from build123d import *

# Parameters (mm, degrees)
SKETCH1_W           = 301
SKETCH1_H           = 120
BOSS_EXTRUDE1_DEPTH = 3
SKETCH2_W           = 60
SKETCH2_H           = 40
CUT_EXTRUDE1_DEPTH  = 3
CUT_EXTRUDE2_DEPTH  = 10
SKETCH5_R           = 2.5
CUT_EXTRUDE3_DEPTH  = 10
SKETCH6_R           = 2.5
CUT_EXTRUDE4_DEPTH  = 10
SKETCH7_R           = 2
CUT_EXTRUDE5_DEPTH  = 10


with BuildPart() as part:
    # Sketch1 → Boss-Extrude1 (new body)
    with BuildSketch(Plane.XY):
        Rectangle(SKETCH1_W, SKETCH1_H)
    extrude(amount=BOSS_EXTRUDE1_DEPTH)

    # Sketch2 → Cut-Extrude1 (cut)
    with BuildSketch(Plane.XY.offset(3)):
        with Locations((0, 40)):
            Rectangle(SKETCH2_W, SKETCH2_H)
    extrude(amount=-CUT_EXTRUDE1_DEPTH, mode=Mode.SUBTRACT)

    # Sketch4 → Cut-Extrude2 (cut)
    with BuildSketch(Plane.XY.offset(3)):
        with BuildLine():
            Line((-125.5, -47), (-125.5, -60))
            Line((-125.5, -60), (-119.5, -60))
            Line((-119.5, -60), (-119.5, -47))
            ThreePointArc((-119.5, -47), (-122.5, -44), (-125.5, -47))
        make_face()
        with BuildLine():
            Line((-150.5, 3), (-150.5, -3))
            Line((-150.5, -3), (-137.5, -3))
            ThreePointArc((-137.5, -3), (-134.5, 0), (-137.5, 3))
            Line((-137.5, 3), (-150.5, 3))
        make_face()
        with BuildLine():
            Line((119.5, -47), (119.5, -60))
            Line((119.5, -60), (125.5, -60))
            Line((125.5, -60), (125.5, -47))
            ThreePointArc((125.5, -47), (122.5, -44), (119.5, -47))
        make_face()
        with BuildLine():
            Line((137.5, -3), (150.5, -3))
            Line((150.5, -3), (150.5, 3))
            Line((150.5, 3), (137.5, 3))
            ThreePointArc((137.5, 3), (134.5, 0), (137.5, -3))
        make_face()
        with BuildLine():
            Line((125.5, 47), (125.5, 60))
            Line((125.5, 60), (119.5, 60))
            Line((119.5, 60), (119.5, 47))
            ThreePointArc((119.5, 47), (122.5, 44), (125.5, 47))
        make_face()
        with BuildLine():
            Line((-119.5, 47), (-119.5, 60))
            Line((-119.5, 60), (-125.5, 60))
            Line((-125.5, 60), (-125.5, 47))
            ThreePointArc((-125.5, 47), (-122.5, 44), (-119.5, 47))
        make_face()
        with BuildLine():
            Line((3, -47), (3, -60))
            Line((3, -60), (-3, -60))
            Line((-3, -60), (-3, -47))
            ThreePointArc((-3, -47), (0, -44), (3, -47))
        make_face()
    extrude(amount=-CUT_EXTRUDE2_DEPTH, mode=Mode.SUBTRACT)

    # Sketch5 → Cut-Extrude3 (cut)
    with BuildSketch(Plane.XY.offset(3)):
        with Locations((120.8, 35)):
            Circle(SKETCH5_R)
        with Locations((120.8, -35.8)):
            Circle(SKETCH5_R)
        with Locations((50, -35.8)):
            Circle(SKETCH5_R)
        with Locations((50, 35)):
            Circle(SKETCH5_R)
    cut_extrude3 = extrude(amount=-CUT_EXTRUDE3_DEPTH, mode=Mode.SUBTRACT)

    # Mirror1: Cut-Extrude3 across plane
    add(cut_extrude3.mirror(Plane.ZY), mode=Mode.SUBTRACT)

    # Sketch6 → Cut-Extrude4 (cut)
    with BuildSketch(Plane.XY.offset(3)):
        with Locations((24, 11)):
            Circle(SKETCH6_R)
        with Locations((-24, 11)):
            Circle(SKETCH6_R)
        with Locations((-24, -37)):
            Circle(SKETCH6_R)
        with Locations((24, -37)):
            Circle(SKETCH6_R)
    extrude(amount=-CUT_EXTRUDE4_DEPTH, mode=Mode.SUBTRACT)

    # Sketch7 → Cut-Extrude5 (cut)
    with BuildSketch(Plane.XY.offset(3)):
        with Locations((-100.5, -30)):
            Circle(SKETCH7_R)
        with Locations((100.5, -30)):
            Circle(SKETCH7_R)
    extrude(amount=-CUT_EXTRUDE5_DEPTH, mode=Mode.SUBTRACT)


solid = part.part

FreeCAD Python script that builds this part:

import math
import FreeCAD as App
import Part
import Sketcher
from FreeCAD import Vector
Q = App.Units.Quantity

doc = App.newDocument("Part")
params = doc.addObject("Spreadsheet::Sheet", "Params")
for row, (alias, value) in enumerate([
    ("sketch1_width", "301 mm"),
    ("sketch1_height", "120 mm"),
    ("pad1_length", "3 mm"),
    ("sketch2_width", "60 mm"),
    ("sketch2_height", "40 mm"),
    ("pocket1_length", "3 mm"),
    ("sketch3_radius", "3 mm"),
    ("sketch3_width", "13 mm"),
    ("pocket2_length", "10 mm"),
    ("sketch4_diameter", "5 mm"),
    ("pocket3_length", "10 mm"),
    ("sketch5_diameter", "5 mm"),
    ("pocket4_length", "10 mm"),
    ("sketch6_diameter", "4 mm"),
    ("pocket5_length", "10 mm"),
], start=1):
    params.set(f"A{row}", alias)
    params.set(f"B{row}", "=" + value)
    params.setAlias(f"B{row}", alias)

body = doc.addObject("PartDesign::Body", "Body")

# Sketch on XY plane
sketch1 = doc.addObject("Sketcher::SketchObject", "Sketch")
body.addObject(sketch1)
sketch1.AttachmentSupport = (doc.XY_Plane, [""])
sketch1.MapMode = "FlatFace"
sketch1.addGeometry([
    Part.LineSegment(Vector(-150.5, 60, 0), Vector(-150.5, -60, 0)),
    Part.LineSegment(Vector(-150.5, -60, 0), Vector(150.5, -60, 0)),
    Part.LineSegment(Vector(150.5, -60, 0), Vector(150.5, 60, 0)),
    Part.LineSegment(Vector(150.5, 60, 0), Vector(-150.5, 60, 0)),
], False)
sketch1.addConstraint([
    Sketcher.Constraint("Coincident", 0, 2, 1, 1),
    Sketcher.Constraint("Coincident", 1, 2, 2, 1),
    Sketcher.Constraint("Coincident", 2, 2, 3, 1),
    Sketcher.Constraint("Coincident", 3, 2, 0, 1),
    Sketcher.Constraint("Vertical", 0),
    Sketcher.Constraint("Horizontal", 1),
    Sketcher.Constraint("Vertical", 2),
    Sketcher.Constraint("Horizontal", 3),
    Sketcher.Constraint("Symmetric", 0, 2, 2, 2, -1, 1),
    Sketcher.Constraint("DistanceX", 1, 1, 1, 2, Q("301 mm")),
    Sketcher.Constraint("DistanceY", 0, 2, 0, 1, Q("120 mm")),
])
sketch1.setExpression("Constraints[9]", "Params.sketch1_width")
sketch1.setExpression("Constraints[10]", "Params.sketch1_height")
pad1 = doc.addObject("PartDesign::Pad", "Pad")
body.addObject(pad1)
pad1.Profile = sketch1
pad1.setExpression("Length", "Params.pad1_length")

# Sketch on XY plane
sketch2 = doc.addObject("Sketcher::SketchObject", "Sketch001")
body.addObject(sketch2)
sketch2.AttachmentSupport = (doc.XY_Plane, [""])
sketch2.MapMode = "FlatFace"
sketch2.AttachmentOffset = App.Placement(Vector(0, 0, 3), App.Rotation())
sketch2.addGeometry([
    Part.LineSegment(Vector(-30, 60, 0), Vector(-30, 20, 0)),
    Part.LineSegment(Vector(-30, 20, 0), Vector(30, 20, 0)),
    Part.LineSegment(Vector(30, 20, 0), Vector(30, 60, 0)),
    Part.LineSegment(Vector(30, 60, 0), Vector(-30, 60, 0)),
], False)
sketch2.addConstraint([
    Sketcher.Constraint("Coincident", 0, 2, 1, 1),
    Sketcher.Constraint("Coincident", 1, 2, 2, 1),
    Sketcher.Constraint("Coincident", 2, 2, 3, 1),
    Sketcher.Constraint("Coincident", 3, 2, 0, 1),
    Sketcher.Constraint("Vertical", 0),
    Sketcher.Constraint("Horizontal", 1),
    Sketcher.Constraint("Vertical", 2),
    Sketcher.Constraint("Horizontal", 3),
    Sketcher.Constraint("DistanceX", 1, 1, 1, 2, Q("60 mm")),
    Sketcher.Constraint("DistanceY", 0, 2, 0, 1, Q("40 mm")),
    Sketcher.Constraint("DistanceX", 0, 2, -1, 1, Q("30 mm")),
    Sketcher.Constraint("DistanceY", -1, 1, 0, 2, Q("20 mm")),
])
sketch2.setExpression("Constraints[8]", "Params.sketch2_width")
sketch2.setExpression("Constraints[9]", "Params.sketch2_height")
pocket1 = doc.addObject("PartDesign::Pocket", "Pocket")
body.addObject(pocket1)
pocket1.Profile = sketch2
pocket1.setExpression("Length", "Params.pocket1_length")

# Sketch on XY plane
sketch3 = doc.addObject("Sketcher::SketchObject", "Sketch002")
body.addObject(sketch3)
sketch3.AttachmentSupport = (doc.XY_Plane, [""])
sketch3.MapMode = "FlatFace"
sketch3.AttachmentOffset = App.Placement(Vector(0, 0, 3), App.Rotation())
sketch3.addGeometry([
    Part.LineSegment(Vector(-125.5, -47, 0), Vector(-125.5, -60, 0)),  # 0
    Part.LineSegment(Vector(-125.5, -60, 0), Vector(-119.5, -60, 0)),  # 1
    Part.LineSegment(Vector(-119.5, -60, 0), Vector(-119.5, -47, 0)),  # 2
    Part.ArcOfCircle(Part.Circle(Vector(-122.5, -47, 0), Vector(0, 0, 1), 3), math.radians(0), math.radians(180)),  # 3
    Part.LineSegment(Vector(-150.5, 3, 0), Vector(-150.5, -3, 0)),  # 4
    Part.LineSegment(Vector(-150.5, -3, 0), Vector(-137.5, -3, 0)),  # 5
    Part.ArcOfCircle(Part.Circle(Vector(-137.5, 0, 0), Vector(0, 0, 1), 3), math.radians(-90), math.radians(90)),  # 6
    Part.LineSegment(Vector(-137.5, 3, 0), Vector(-150.5, 3, 0)),  # 7
    Part.LineSegment(Vector(119.5, -47, 0), Vector(119.5, -60, 0)),  # 8
    Part.LineSegment(Vector(119.5, -60, 0), Vector(125.5, -60, 0)),  # 9
    Part.LineSegment(Vector(125.5, -60, 0), Vector(125.5, -47, 0)),  # 10
    Part.ArcOfCircle(Part.Circle(Vector(122.5, -47, 0), Vector(0, 0, 1), 3), math.radians(0), math.radians(180)),  # 11
    Part.LineSegment(Vector(137.5, -3, 0), Vector(150.5, -3, 0)),  # 12
    Part.LineSegment(Vector(150.5, -3, 0), Vector(150.5, 3, 0)),  # 13
    Part.LineSegment(Vector(150.5, 3, 0), Vector(137.5, 3, 0)),  # 14
    Part.ArcOfCircle(Part.Circle(Vector(137.5, 0, 0), Vector(0, 0, 1), 3), math.radians(90), math.radians(270)),  # 15
    Part.LineSegment(Vector(125.5, 47, 0), Vector(125.5, 60, 0)),  # 16
    Part.LineSegment(Vector(125.5, 60, 0), Vector(119.5, 60, 0)),  # 17
    Part.LineSegment(Vector(119.5, 60, 0), Vector(119.5, 47, 0)),  # 18
    Part.ArcOfCircle(Part.Circle(Vector(122.5, 47, 0), Vector(0, 0, 1), 3), math.radians(180), math.radians(360)),  # 19
    Part.LineSegment(Vector(-119.5, 47, 0), Vector(-119.5, 60, 0)),  # 20
    Part.LineSegment(Vector(-119.5, 60, 0), Vector(-125.5, 60, 0)),  # 21
    Part.LineSegment(Vector(-125.5, 60, 0), Vector(-125.5, 47, 0)),  # 22
    Part.ArcOfCircle(Part.Circle(Vector(-122.5, 47, 0), Vector(0, 0, 1), 3), math.radians(180), math.radians(360)),  # 23
    Part.LineSegment(Vector(3, -60, 0), Vector(3, -47, 0)),  # 24
    Part.ArcOfCircle(Part.Circle(Vector(0, -47, 0), Vector(0, 0, 1), 3), math.radians(0), math.radians(180)),  # 25
    Part.LineSegment(Vector(-3, -47, 0), Vector(-3, -60, 0)),  # 26
    Part.LineSegment(Vector(-3, -60, 0), Vector(3, -60, 0)),  # 27
], False)
sketch3.addConstraint([
    Sketcher.Constraint("Coincident", 0, 2, 1, 1),
    Sketcher.Constraint("Coincident", 1, 2, 2, 1),
    Sketcher.Constraint("Tangent", 2, 2, 3, 1),
    Sketcher.Constraint("Tangent", 3, 2, 0, 1),
    Sketcher.Constraint("Coincident", 4, 2, 5, 1),
    Sketcher.Constraint("Tangent", 5, 2, 6, 1),
    Sketcher.Constraint("Tangent", 6, 2, 7, 1),
    Sketcher.Constraint("Coincident", 7, 2, 4, 1),
    Sketcher.Constraint("Coincident", 8, 2, 9, 1),
    Sketcher.Constraint("Coincident", 9, 2, 10, 1),
    Sketcher.Constraint("Tangent", 10, 2, 11, 1),
    Sketcher.Constraint("Tangent", 11, 2, 8, 1),
    Sketcher.Constraint("Coincident", 12, 2, 13, 1),
    Sketcher.Constraint("Coincident", 13, 2, 14, 1),
    Sketcher.Constraint("Tangent", 14, 2, 15, 1),
    Sketcher.Constraint("Tangent", 15, 2, 12, 1),
    Sketcher.Constraint("Coincident", 16, 2, 17, 1),
    Sketcher.Constraint("Coincident", 17, 2, 18, 1),
    Sketcher.Constraint("Tangent", 18, 2, 19, 1),
    Sketcher.Constraint("Tangent", 19, 2, 16, 1),
    Sketcher.Constraint("Coincident", 20, 2, 21, 1),
    Sketcher.Constraint("Coincident", 21, 2, 22, 1),
    Sketcher.Constraint("Tangent", 22, 2, 23, 1),
    Sketcher.Constraint("Tangent", 23, 2, 20, 1),
    Sketcher.Constraint("Tangent", 24, 2, 25, 1),
    Sketcher.Constraint("Tangent", 25, 2, 26, 1),
    Sketcher.Constraint("Coincident", 26, 2, 27, 1),
    Sketcher.Constraint("Coincident", 27, 2, 24, 1),
    Sketcher.Constraint("Vertical", 0),
    Sketcher.Constraint("Horizontal", 1),
    Sketcher.Constraint("Vertical", 2),
    Sketcher.Constraint("Vertical", 4),
    Sketcher.Constraint("Horizontal", 5),
    Sketcher.Constraint("Horizontal", 7),
    Sketcher.Constraint("Vertical", 8),
    Sketcher.Constraint("Horizontal", 9),
    Sketcher.Constraint("Vertical", 10),
    Sketcher.Constraint("Horizontal", 12),
    Sketcher.Constraint("Vertical", 13),
    Sketcher.Constraint("Horizontal", 14),
    Sketcher.Constraint("Vertical", 16),
    Sketcher.Constraint("Horizontal", 17),
    Sketcher.Constraint("Vertical", 18),
    Sketcher.Constraint("Vertical", 20),
    Sketcher.Constraint("Horizontal", 21),
    Sketcher.Constraint("Vertical", 22),
    Sketcher.Constraint("Vertical", 24),
    Sketcher.Constraint("Vertical", 26),
    Sketcher.Constraint("Horizontal", 27),
    Sketcher.Constraint("Equal", 3, 6),
    Sketcher.Constraint("Equal", 6, 11),
    Sketcher.Constraint("Equal", 11, 15),
    Sketcher.Constraint("Equal", 15, 19),
    Sketcher.Constraint("Equal", 19, 23),
    Sketcher.Constraint("Equal", 23, 25),
    Sketcher.Constraint("Symmetric", 6, 3, 15, 3, -1, 1),
    Sketcher.Constraint("Symmetric", 3, 3, 19, 3, -1, 1),
    Sketcher.Constraint("Symmetric", 11, 3, 23, 3, -1, 1),
    Sketcher.Constraint("Symmetric", 3, 3, 11, 3, -2),
    Sketcher.Constraint("Symmetric", 4, 2, 12, 2, -2),
    Sketcher.Constraint("PointOnObject", 25, 3, -2),
    Sketcher.Constraint("Horizontal", 11, 3, 25, 3),
    Sketcher.Constraint("Horizontal", 1, 2, 8, 2),
    Sketcher.Constraint("Horizontal", 17, 2, 20, 2),
    Sketcher.Constraint("Horizontal", 9, 2, 26, 2),
    Sketcher.Constraint("Equal", 14, 0),
    Sketcher.Constraint("Equal", 10, 16),
    Sketcher.Constraint("Radius", 3, Q("3 mm")),
    Sketcher.Constraint("DistanceX", 5, 1, 5, 2, Q("13 mm")),
    Sketcher.Constraint("DistanceY", 3, 3, -1, 1, Q("47 mm")),
    Sketcher.Constraint("DistanceX", 6, 3, 3, 3, Q("15 mm")),
    Sketcher.Constraint("DistanceX", 3, 3, 11, 3, Q("245 mm")),
])
sketch3.setExpression("Constraints[67]", "Params.sketch3_radius")
sketch3.setExpression("Constraints[68]", "Params.sketch3_width")
pocket2 = doc.addObject("PartDesign::Pocket", "Pocket001")
body.addObject(pocket2)
pocket2.Profile = sketch3
pocket2.setExpression("Length", "Params.pocket2_length")

# Sketch on XY plane
sketch4 = doc.addObject("Sketcher::SketchObject", "Sketch003")
body.addObject(sketch4)
sketch4.AttachmentSupport = (doc.XY_Plane, [""])
sketch4.MapMode = "FlatFace"
sketch4.AttachmentOffset = App.Placement(Vector(0, 0, 3), App.Rotation())
sketch4.addGeometry([
    Part.Circle(Vector(120.8, 35, 0), Vector(0, 0, 1), 2.5),
    Part.Circle(Vector(120.8, -35.8, 0), Vector(0, 0, 1), 2.5),
    Part.Circle(Vector(50, -35.8, 0), Vector(0, 0, 1), 2.5),
    Part.Circle(Vector(50, 35, 0), Vector(0, 0, 1), 2.5),
], False)
sketch4.addConstraint([
    Sketcher.Constraint("Equal", 0, 1),
    Sketcher.Constraint("Equal", 1, 2),
    Sketcher.Constraint("Equal", 2, 3),
    Sketcher.Constraint("Horizontal", 1, 3, 2, 3),
    Sketcher.Constraint("Horizontal", 0, 3, 3, 3),
    Sketcher.Constraint("Vertical", 0, 3, 1, 3),
    Sketcher.Constraint("Vertical", 2, 3, 3, 3),
    Sketcher.Constraint("Diameter", 0, Q("5 mm")),
    Sketcher.Constraint("DistanceY", -1, 1, 0, 3, Q("35 mm")),
    Sketcher.Constraint("DistanceX", -1, 1, 2, 3, Q("50 mm")),
    Sketcher.Constraint("DistanceX", -1, 1, 0, 3, Q("120.8 mm")),
    Sketcher.Constraint("DistanceY", 1, 3, -1, 1, Q("35.8 mm")),
])
sketch4.setExpression("Constraints[7]", "Params.sketch4_diameter")
pocket3 = doc.addObject("PartDesign::Pocket", "Pocket002")
body.addObject(pocket3)
pocket3.Profile = sketch4
pocket3.setExpression("Length", "Params.pocket3_length")
doc.recompute()

mirrored = doc.addObject("PartDesign::Mirrored", "Mirrored")
body.addObject(mirrored)
mirrored.Originals = [pocket3]
mirrored.MirrorPlane = (doc.YZ_Plane, [""])
body.Tip = mirrored

# Sketch on XY plane
sketch5 = doc.addObject("Sketcher::SketchObject", "Sketch004")
body.addObject(sketch5)
sketch5.AttachmentSupport = (doc.XY_Plane, [""])
sketch5.MapMode = "FlatFace"
sketch5.AttachmentOffset = App.Placement(Vector(0, 0, 3), App.Rotation())
sketch5.addGeometry([
    Part.Circle(Vector(24, 11, 0), Vector(0, 0, 1), 2.5),
    Part.Circle(Vector(-24, 11, 0), Vector(0, 0, 1), 2.5),
    Part.Circle(Vector(-24, -37, 0), Vector(0, 0, 1), 2.5),
    Part.Circle(Vector(24, -37, 0), Vector(0, 0, 1), 2.5),
], False)
sketch5.addConstraint([
    Sketcher.Constraint("Equal", 0, 1),
    Sketcher.Constraint("Equal", 1, 2),
    Sketcher.Constraint("Equal", 2, 3),
    Sketcher.Constraint("Symmetric", 0, 3, 1, 3, -2),
    Sketcher.Constraint("Symmetric", 2, 3, 3, 3, -2),
    Sketcher.Constraint("Vertical", 1, 3, 2, 3),
    Sketcher.Constraint("Diameter", 0, Q("5 mm")),
    Sketcher.Constraint("DistanceX", -1, 1, 0, 3, Q("24 mm")),
    Sketcher.Constraint("DistanceY", -1, 1, 0, 3, Q("11 mm")),
    Sketcher.Constraint("DistanceY", 2, 3, -1, 1, Q("37 mm")),
])
sketch5.setExpression("Constraints[6]", "Params.sketch5_diameter")
pocket4 = doc.addObject("PartDesign::Pocket", "Pocket003")
body.addObject(pocket4)
pocket4.Profile = sketch5
pocket4.setExpression("Length", "Params.pocket4_length")

# Sketch on XY plane
sketch6 = doc.addObject("Sketcher::SketchObject", "Sketch005")
body.addObject(sketch6)
sketch6.AttachmentSupport = (doc.XY_Plane, [""])
sketch6.MapMode = "FlatFace"
sketch6.AttachmentOffset = App.Placement(Vector(0, 0, 3), App.Rotation())
sketch6.addGeometry([
    Part.Circle(Vector(-100.5, -30, 0), Vector(0, 0, 1), 2),
    Part.Circle(Vector(100.5, -30, 0), Vector(0, 0, 1), 2),
], False)
sketch6.addConstraint([
    Sketcher.Constraint("Equal", 0, 1),
    Sketcher.Constraint("Symmetric", 0, 3, 1, 3, -2),
    Sketcher.Constraint("Diameter", 0, Q("4 mm")),
    Sketcher.Constraint("DistanceY", 0, 3, -1, 1, Q("30 mm")),
    Sketcher.Constraint("DistanceX", 0, 3, 1, 3, Q("201 mm")),
])
sketch6.setExpression("Constraints[2]", "Params.sketch6_diameter")
pocket5 = doc.addObject("PartDesign::Pocket", "Pocket004")
body.addObject(pocket5)
pocket5.Profile = sketch6
pocket5.setExpression("Length", "Params.pocket5_length")

doc.recompute()
